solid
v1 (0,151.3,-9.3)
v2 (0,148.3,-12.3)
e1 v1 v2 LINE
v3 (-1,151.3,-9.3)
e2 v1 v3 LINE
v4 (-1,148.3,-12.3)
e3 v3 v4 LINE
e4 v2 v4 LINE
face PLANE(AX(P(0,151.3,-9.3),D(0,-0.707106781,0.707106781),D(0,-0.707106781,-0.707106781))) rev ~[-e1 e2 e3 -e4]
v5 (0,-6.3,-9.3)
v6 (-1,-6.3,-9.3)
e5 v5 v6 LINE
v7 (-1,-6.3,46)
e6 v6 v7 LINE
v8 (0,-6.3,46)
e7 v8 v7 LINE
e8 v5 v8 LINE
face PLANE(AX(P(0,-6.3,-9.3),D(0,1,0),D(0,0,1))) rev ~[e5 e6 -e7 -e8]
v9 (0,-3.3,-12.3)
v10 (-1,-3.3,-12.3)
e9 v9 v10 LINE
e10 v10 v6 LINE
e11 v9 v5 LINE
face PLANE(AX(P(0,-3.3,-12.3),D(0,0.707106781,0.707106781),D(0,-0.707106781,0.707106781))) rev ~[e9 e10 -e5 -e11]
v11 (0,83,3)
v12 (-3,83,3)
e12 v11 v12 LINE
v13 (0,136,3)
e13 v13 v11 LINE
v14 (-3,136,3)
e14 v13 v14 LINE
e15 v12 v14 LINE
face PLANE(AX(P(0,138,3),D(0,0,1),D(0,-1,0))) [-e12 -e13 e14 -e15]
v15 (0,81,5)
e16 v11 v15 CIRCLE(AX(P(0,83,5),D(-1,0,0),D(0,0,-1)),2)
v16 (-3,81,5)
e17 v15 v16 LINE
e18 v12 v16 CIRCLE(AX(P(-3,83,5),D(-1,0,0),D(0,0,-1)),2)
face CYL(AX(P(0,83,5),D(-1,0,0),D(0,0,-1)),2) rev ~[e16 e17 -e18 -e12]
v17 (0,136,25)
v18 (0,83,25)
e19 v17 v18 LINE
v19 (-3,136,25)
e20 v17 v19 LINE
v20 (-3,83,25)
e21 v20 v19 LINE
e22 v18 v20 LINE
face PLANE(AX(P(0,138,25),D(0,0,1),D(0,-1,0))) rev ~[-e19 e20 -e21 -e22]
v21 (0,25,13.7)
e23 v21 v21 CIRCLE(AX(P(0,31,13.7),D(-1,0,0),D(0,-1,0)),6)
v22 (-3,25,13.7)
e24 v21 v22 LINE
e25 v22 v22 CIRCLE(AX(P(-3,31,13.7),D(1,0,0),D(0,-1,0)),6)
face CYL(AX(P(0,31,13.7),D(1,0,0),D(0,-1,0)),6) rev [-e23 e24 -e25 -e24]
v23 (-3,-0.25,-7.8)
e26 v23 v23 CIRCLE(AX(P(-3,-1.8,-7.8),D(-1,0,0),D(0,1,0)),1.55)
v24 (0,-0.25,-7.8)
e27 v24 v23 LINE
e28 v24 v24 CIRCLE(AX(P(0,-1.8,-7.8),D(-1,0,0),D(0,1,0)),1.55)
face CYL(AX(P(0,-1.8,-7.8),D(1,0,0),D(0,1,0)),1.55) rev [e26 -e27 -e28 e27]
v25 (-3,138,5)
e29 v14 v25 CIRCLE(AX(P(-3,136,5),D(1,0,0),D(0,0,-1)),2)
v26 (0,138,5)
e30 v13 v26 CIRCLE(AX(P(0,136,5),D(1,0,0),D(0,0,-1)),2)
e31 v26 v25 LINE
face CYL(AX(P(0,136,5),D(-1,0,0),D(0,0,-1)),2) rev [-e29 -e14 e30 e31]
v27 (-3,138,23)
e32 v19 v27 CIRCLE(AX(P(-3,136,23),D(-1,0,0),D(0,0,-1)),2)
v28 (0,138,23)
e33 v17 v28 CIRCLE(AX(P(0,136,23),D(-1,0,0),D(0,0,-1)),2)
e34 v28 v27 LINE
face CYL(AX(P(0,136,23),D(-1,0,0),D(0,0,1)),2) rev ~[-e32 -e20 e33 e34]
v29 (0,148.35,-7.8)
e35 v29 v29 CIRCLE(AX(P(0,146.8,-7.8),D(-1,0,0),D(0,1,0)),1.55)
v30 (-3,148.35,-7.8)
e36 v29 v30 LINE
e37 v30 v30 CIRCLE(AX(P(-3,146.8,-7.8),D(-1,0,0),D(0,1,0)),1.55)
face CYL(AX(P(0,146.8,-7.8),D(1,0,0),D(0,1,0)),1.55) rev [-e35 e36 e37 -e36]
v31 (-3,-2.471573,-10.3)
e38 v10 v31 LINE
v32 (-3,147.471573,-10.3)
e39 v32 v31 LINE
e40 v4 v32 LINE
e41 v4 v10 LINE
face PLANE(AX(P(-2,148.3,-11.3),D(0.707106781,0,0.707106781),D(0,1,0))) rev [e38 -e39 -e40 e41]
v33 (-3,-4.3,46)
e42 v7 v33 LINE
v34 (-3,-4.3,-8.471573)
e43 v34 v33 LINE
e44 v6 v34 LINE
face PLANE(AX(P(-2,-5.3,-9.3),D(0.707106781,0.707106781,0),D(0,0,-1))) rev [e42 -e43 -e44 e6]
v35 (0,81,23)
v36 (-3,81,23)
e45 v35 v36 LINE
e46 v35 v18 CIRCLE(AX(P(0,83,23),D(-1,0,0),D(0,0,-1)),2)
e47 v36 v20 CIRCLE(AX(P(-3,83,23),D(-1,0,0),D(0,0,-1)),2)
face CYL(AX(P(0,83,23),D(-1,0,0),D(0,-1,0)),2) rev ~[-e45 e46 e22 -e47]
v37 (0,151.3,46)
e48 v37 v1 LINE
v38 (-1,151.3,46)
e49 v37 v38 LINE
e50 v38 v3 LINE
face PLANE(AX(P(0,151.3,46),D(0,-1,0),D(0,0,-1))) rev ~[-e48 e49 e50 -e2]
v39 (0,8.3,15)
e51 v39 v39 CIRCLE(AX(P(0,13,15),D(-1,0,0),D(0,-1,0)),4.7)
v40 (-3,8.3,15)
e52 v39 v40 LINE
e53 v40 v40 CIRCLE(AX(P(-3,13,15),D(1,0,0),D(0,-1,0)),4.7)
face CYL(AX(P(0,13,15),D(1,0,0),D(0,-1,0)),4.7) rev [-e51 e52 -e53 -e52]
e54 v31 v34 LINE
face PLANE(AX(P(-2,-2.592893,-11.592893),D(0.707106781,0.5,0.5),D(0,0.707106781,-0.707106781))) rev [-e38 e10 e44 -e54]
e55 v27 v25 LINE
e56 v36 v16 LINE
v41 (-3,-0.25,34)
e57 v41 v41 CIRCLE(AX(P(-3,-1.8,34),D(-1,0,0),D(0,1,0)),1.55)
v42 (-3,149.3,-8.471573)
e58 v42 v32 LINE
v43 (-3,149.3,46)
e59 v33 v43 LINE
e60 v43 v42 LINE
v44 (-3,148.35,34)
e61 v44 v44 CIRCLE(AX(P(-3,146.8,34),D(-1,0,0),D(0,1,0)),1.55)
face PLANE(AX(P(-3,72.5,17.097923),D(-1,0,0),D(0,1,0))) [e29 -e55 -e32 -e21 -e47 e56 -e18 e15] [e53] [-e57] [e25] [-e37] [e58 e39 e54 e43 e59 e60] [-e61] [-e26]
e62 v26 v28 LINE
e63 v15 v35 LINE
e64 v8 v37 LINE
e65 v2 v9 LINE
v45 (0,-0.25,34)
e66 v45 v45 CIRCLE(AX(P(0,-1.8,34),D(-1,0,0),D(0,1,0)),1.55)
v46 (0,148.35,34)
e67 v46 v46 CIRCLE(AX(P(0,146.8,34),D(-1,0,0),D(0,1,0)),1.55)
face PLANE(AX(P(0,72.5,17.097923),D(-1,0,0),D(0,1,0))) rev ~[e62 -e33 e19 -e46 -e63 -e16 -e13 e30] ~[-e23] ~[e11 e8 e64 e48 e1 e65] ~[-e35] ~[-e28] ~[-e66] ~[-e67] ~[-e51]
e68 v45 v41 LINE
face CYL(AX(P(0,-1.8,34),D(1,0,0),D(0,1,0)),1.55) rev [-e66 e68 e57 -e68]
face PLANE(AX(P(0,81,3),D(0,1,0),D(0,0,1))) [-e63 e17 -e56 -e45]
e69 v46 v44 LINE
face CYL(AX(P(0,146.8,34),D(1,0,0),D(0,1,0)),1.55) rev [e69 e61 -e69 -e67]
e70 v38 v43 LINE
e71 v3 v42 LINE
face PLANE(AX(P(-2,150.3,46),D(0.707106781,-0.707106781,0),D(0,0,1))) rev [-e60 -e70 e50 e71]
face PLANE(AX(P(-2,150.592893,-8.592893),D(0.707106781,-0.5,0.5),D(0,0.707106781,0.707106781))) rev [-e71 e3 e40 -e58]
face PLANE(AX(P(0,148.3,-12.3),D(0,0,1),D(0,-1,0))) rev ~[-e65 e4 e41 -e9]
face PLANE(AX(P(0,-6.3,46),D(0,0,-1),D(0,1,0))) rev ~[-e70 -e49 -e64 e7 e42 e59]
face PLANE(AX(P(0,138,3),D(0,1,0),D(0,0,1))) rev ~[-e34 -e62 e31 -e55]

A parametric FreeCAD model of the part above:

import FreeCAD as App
import Part
import Sketcher


def edges_at(feature, points):
    """Names of the edges that pass closest to the given points."""
    edges = feature.Shape.Edges
    near = lambda p: min(range(len(edges)), key=lambda i: edges[i].distToShape(Part.Vertex(*p))[0])
    return sorted({f"Edge{near(p) + 1}" for p in points})


def add_polygon(sketch, points):
    """Adds a closed chain of lines whose ends are joined by coincident constraints."""
    first, n = sketch.GeometryCount, len(points)
    for a, b in zip(points, points[1:] + points[:1]):
        sketch.addGeometry(Part.LineSegment(App.Vector(*a, 0), App.Vector(*b, 0)), False)
    for i in range(n):
        sketch.addConstraint(Sketcher.Constraint("Coincident", first + i, 2, first + (i + 1) % n, 1))

doc = App.newDocument("Part")
body = doc.addObject("PartDesign::Body", "Body")

# Sketch on YZ plane
sketch1 = doc.addObject("Sketcher::SketchObject", "Sketch")
body.addObject(sketch1)
sketch1.AttachmentSupport = (doc.YZ_Plane, [""])
sketch1.MapMode = "FlatFace"
add_polygon(sketch1, [(-6.3, 46), (151.3, 46), (151.3, -9.3), (148.3, -12.3), (-3.3, -12.3), (-6.3, -9.3)])  # lines 0-5
sketch1.addGeometry(Part.Circle(App.Vector(-1.8, 34, 0), App.Vector(0, 0, 1), 1.6), False)  # 6
sketch1.addGeometry(Part.Circle(App.Vector(146.8, 34, 0), App.Vector(0, 0, 1), 1.6), False)  # 7
sketch1.addGeometry(Part.Circle(App.Vector(-1.8, -7.8, 0), App.Vector(0, 0, 1), 1.6), False)  # 8
sketch1.addGeometry(Part.Circle(App.Vector(146.8, -7.8, 0), App.Vector(0, 0, 1), 1.6), False)  # 9
sketch1.addConstraint([
    Sketcher.Constraint("Horizontal", 0),
    Sketcher.Constraint("Vertical", 1),
    Sketcher.Constraint("Horizontal", 3),
    Sketcher.Constraint("Vertical", 5),
    Sketcher.Constraint("Equal", 6, 7),
    Sketcher.Constraint("Equal", 7, 8),
    Sketcher.Constraint("Equal", 8, 9),
    Sketcher.Constraint("Perpendicular", 2, 4),
    Sketcher.Constraint("Horizontal", 6, 3, 7, 3),
    Sketcher.Constraint("Horizontal", 8, 3, 9, 3),
    Sketcher.Constraint("Horizontal", 1, 2, 4, 2),
    Sketcher.Constraint("Vertical", 6, 3, 8, 3),
    Sketcher.Constraint("Vertical", 7, 3, 9, 3),
    Sketcher.Constraint("Equal", 2, 4),
    Sketcher.Constraint("Diameter", 6, 3.1),
    Sketcher.Constraint("DistanceX", 0, 1, 0, 2, 157.6),
    Sketcher.Constraint("DistanceX", 3, 2, 3, 1, 151.6),
    Sketcher.Constraint("DistanceY", 1, 2, 1, 1, 55.3),
    Sketcher.Constraint("DistanceY", -1, 1, 6, 3, 34.0),
    Sketcher.Constraint("DistanceY", -1, 1, 0, 2, 46.0),
    Sketcher.Constraint("DistanceX", 6, 3, -1, 1, 1.8),
    Sketcher.Constraint("DistanceX", -1, 1, 7, 3, 146.8),
    Sketcher.Constraint("DistanceY", 8, 3, -1, 1, 7.8),
    Sketcher.Constraint("DistanceX", -1, 1, 0, 2, 151.3),
])
pad1 = doc.addObject("PartDesign::Pad", "Pad")
body.addObject(pad1)
pad1.Profile = sketch1
pad1.Length = 3
pad1.Reversed = True

# Sketch on YZ plane
sketch2 = doc.addObject("Sketcher::SketchObject", "Sketch001")
body.addObject(sketch2)
sketch2.AttachmentSupport = (doc.YZ_Plane, [""])
sketch2.MapMode = "FlatFace"
sketch2.addGeometry(Part.Circle(App.Vector(31, 13.7, 0), App.Vector(0, 0, 1), 6), False)  # 0
sketch2.addGeometry(Part.Circle(App.Vector(13, 15, 0), App.Vector(0, 0, 1), 4.7), False)  # 1
add_polygon(sketch2, [(138, 25), (138, 3), (81, 3), (81, 25)])  # lines 2-5
sketch2.addConstraint([
    Sketcher.Constraint("Vertical", 2),
    Sketcher.Constraint("Horizontal", 3),
    Sketcher.Constraint("Vertical", 4),
    Sketcher.Constraint("Horizontal", 5),
    Sketcher.Constraint("Diameter", 0, 12.0),
    Sketcher.Constraint("Diameter", 1, 9.4),
    Sketcher.Constraint("DistanceX", 3, 2, 3, 1, 57.0),
    Sketcher.Constraint("DistanceY", 2, 2, 2, 1, 22.0),
    Sketcher.Constraint("DistanceX", -1, 1, 0, 3, 31.0),
    Sketcher.Constraint("DistanceX", -1, 1, 1, 3, 13.0),
    Sketcher.Constraint("DistanceY", -1, 1, 1, 3, 15.0),
    Sketcher.Constraint("DistanceX", -1, 1, 2, 2, 138.0),
    Sketcher.Constraint("DistanceY", -1, 1, 2, 2, 3.0),
    Sketcher.Constraint("DistanceY", -1, 1, 0, 3, 13.7),
])
pocket1 = doc.addObject("PartDesign::Pocket", "Pocket")
body.addObject(pocket1)
pocket1.Profile = sketch2
pocket1.Length = 5
doc.recompute()

fillet = doc.addObject("PartDesign::Fillet", "Fillet")
body.addObject(fillet)
fillet.Base = (pocket1, edges_at(pocket1, [
    (-1.5, 138, 3),
    (-1.5, 138, 25),
    (-1.5, 81, 25),
    (-1.5, 81, 3),
]))
fillet.Radius = 2
doc.recompute()

chamfer = doc.addObject("PartDesign::Chamfer", "Chamfer")
body.addObject(chamfer)
chamfer.Base = (fillet, edges_at(fillet, [
    (-3, 72.5, -12.3),
    (-3, 151.3, 18.35),
    (-3, -6.3, 18.35),
    (-3, 149.8, -10.8),
    (-3, -4.8, -10.8),
]))
chamfer.Size = 2

doc.recompute()
